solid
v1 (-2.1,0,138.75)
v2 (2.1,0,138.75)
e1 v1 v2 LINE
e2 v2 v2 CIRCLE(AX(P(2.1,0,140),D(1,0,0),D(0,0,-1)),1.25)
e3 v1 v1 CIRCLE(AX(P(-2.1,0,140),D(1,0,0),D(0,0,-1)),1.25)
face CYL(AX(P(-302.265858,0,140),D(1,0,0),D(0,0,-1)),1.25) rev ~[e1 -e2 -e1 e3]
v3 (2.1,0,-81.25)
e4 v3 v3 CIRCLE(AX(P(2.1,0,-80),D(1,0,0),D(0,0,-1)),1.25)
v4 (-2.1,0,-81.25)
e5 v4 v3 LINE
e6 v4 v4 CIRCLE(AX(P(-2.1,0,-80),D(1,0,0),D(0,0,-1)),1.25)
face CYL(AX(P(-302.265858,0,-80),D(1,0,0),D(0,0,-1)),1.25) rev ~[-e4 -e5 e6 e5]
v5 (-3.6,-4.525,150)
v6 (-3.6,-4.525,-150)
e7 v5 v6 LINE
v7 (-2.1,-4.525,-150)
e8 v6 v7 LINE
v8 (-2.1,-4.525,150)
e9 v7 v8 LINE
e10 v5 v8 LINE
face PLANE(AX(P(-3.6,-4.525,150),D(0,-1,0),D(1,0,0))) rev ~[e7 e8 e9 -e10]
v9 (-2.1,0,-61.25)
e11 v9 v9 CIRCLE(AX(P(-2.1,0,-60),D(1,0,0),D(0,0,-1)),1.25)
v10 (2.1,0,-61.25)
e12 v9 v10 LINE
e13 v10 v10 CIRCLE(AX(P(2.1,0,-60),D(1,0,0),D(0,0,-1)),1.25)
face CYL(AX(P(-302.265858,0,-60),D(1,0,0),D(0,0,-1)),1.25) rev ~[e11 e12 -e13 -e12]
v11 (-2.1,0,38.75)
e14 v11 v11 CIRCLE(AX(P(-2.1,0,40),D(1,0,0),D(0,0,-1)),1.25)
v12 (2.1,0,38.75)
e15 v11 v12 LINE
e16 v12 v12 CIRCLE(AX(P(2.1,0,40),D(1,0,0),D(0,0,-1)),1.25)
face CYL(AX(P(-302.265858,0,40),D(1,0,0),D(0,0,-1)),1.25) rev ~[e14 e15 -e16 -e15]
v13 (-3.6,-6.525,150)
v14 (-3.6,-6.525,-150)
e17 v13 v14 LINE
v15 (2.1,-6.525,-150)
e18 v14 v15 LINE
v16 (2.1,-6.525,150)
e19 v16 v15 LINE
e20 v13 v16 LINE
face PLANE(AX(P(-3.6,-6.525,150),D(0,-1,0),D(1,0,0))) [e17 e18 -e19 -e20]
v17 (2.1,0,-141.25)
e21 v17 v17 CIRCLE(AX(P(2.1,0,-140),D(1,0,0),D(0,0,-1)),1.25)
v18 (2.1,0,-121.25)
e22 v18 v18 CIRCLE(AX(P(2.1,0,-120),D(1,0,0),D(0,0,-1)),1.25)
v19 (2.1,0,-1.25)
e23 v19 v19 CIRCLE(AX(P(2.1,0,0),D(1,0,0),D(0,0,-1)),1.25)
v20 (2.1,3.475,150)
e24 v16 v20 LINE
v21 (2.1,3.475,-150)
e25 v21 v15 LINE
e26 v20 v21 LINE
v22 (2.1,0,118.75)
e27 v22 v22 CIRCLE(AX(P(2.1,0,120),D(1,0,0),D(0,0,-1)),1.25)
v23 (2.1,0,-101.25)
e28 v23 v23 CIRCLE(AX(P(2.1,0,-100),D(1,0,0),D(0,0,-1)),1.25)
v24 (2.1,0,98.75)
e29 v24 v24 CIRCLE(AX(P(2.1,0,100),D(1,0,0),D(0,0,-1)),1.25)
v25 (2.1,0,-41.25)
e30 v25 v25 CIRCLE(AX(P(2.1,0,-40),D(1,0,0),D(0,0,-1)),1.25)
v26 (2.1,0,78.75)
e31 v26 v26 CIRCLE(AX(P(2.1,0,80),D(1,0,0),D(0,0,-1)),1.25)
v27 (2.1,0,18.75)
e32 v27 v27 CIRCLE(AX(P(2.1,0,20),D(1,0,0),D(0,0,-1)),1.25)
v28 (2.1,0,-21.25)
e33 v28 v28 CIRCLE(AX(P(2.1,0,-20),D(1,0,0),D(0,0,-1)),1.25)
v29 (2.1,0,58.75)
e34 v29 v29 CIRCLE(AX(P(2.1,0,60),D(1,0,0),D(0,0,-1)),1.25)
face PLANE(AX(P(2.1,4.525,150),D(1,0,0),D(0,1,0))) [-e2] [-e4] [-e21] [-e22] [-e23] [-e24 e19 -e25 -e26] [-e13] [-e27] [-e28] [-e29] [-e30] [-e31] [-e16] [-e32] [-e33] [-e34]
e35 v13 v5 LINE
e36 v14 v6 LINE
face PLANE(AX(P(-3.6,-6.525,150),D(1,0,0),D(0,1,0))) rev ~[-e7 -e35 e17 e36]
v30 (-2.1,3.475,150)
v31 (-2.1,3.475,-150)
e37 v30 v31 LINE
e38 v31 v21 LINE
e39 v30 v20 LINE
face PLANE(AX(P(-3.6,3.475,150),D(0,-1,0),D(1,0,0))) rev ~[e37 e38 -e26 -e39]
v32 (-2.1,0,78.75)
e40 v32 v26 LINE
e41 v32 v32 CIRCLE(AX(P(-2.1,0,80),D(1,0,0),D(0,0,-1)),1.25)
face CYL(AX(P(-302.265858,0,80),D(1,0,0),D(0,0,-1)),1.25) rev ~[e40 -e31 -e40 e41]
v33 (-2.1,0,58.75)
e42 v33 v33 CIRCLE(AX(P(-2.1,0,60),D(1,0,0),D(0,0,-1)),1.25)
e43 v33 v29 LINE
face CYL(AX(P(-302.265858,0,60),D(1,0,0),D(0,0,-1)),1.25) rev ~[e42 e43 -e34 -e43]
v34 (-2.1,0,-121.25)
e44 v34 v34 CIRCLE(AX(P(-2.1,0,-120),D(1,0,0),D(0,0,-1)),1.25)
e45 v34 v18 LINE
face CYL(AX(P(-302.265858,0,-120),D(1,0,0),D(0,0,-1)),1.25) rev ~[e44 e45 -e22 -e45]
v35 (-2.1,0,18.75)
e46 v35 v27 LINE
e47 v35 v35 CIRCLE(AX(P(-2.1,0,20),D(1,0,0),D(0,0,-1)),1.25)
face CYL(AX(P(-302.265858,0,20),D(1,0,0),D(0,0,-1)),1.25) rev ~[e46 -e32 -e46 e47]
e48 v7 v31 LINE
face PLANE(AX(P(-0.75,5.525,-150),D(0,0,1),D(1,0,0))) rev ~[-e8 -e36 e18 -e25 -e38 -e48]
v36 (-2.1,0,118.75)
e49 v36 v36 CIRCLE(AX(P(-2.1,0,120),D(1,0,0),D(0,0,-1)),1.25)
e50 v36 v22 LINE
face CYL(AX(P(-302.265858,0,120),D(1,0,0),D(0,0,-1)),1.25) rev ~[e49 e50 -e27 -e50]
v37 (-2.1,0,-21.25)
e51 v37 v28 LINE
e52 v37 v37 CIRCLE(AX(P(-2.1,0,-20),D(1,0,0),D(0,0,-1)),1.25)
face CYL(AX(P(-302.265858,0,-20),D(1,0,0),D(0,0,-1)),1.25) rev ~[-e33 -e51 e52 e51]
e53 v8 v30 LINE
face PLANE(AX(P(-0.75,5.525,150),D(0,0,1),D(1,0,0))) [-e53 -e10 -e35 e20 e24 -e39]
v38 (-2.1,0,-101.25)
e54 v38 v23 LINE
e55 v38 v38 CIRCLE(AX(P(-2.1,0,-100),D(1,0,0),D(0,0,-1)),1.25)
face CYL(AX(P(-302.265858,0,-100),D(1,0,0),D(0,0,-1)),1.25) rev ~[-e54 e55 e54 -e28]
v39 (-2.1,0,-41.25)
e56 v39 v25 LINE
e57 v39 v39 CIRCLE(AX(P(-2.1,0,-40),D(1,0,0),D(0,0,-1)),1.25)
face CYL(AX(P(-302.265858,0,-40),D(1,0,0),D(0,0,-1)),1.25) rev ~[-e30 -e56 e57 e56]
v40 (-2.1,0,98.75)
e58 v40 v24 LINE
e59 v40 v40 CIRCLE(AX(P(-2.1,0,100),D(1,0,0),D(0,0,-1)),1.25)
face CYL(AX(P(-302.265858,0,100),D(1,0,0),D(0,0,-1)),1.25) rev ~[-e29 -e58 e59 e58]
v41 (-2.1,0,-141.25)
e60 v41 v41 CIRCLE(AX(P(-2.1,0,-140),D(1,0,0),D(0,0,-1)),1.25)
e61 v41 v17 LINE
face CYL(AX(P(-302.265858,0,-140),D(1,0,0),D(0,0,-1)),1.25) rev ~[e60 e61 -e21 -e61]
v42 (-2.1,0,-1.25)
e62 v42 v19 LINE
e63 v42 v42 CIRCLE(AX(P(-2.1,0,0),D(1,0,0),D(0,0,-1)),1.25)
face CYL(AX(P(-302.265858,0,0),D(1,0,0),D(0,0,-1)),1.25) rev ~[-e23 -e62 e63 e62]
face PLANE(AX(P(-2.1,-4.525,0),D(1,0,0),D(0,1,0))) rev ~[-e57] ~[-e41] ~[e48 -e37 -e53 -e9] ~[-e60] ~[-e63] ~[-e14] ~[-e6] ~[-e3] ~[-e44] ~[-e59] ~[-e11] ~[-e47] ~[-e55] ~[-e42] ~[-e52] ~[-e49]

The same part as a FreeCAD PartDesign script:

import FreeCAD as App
import Part
import Sketcher

V = App.Vector


def add_polygon(sketch, points):
    """Adds a closed chain of lines whose ends are joined by coincident constraints."""
    first, n = sketch.GeometryCount, len(points)
    for a, b in zip(points, points[1:] + points[:1]):
        sketch.addGeometry(Part.LineSegment(App.Vector(*a, 0), App.Vector(*b, 0)), False)
    for i in range(n):
        sketch.addConstraint(Sketcher.Constraint("Coincident", first + i, 2, first + (i + 1) % n, 1))

doc = App.newDocument("Part")
body = doc.addObject("PartDesign::Body", "Body")

# Sketch on XY plane
sketch1 = body.newObject("Sketcher::SketchObject", "Sketch")
sketch1.AttachmentSupport = (doc.getObject("XY_Plane"), [""])
sketch1.MapMode = "FlatFace"
add_polygon(sketch1, [(-2.1, 4.5), (-2.1, -4.5), (2.1, -4.5), (2.1, 4.5)])  # lines 0-3
sketch1.addConstraint([
    Sketcher.Constraint("Vertical", 0),
    Sketcher.Constraint("Horizontal", 1),
    Sketcher.Constraint("Vertical", 2),
    Sketcher.Constraint("Horizontal", 3),
    Sketcher.Constraint("Symmetric", 0, 2, 2, 2, -1, 1),
    Sketcher.Constraint("DistanceX", 1, 1, 1, 2, 4.2),
    Sketcher.Constraint("DistanceY", 0, 2, 0, 1, 9.05),
])
pad1 = body.newObject("PartDesign::Pad", "Pad")
pad1.Profile = sketch1
pad1.Length = 300
pad1.Midplane = True

# Sketch on YZ plane
sketch2 = body.newObject("Sketcher::SketchObject", "Sketch001")
sketch2.AttachmentSupport = (doc.getObject("YZ_Plane"), [""])
sketch2.MapMode = "FlatFace"
sketch2.AttachmentOffset = App.Placement(V(0, 0, -2.1), App.Rotation())
sketch2.addGeometry(Part.Circle(V(0, -140, 0), V(0, 0, 1), 1.2), False)
sketch2.addConstraint([
    Sketcher.Constraint("PointOnObject", 0, 3, -2),
    Sketcher.Constraint("Diameter", 0, 2.5),
    Sketcher.Constraint("DistanceY", 0, 3, -1, 1, 140.0),
])
doc.recompute()
hole = body.newObject("PartDesign::Hole", "Hole")
hole.Profile = sketch2
hole.ThreadType = "None"
hole.Diameter = 2.5
hole.DepthType = "ThroughAll"
hole.Reversed = True
doc.recompute()

linearpattern = body.newObject("PartDesign::LinearPattern", "LinearPattern")
linearpattern.Originals = [hole]
linearpattern.Direction = (doc.getObject("Z_Axis"), [""])
linearpattern.Mode = "offset"
linearpattern.Offset = 20
linearpattern.Occurrences = 15
body.Tip = linearpattern

# Sketch on XY plane
sketch3 = body.newObject("Sketcher::SketchObject", "Sketch002")
sketch3.AttachmentSupport = (doc.getObject("XY_Plane"), [""])
sketch3.MapMode = "FlatFace"
sketch3.AttachmentOffset = App.Placement(V(0, 0, 150), App.Rotation())
add_polygon(sketch3, [(-3.6, 6.5), (-3.6, 4.5), (2.1, 4.5), (2.1, 6.5)])  # lines 0-3
add_polygon(sketch3, [(-3.6, -4.5), (-3.6, -6.5), (2.1, -6.5), (2.1, -4.5)])  # lines 4-7
sketch3.addConstraint([
    Sketcher.Constraint("Vertical", 0),
    Sketcher.Constraint("Horizontal", 1),
    Sketcher.Constraint("Vertical", 2),
    Sketcher.Constraint("Horizontal", 3),
    Sketcher.Constraint("Vertical", 4),
    Sketcher.Constraint("Horizontal", 5),
    Sketcher.Constraint("Vertical", 6),
    Sketcher.Constraint("Horizontal", 7),
    Sketcher.Constraint("Symmetric", 3, 2, 4, 2, -1),
    Sketcher.Constraint("Symmetric", 1, 2, 6, 2, -1),
    Sketcher.Constraint("DistanceY", 0, 2, 0, 1, 2.0),
    Sketcher.Constraint("DistanceX", 1, 1, 1, 2, 5.7),
    Sketcher.Constraint("DistanceX", 0, 2, -1, 1, 3.6),
    Sketcher.Constraint("DistanceY", 4, 2, 0, 2, 11.05),
])
pad2 = body.newObject("PartDesign::Pad", "Pad001")
pad2.Profile = sketch3
pad2.Length = 300
pad2.Reversed = True

# Sketch on XY plane
sketch4 = body.newObject("Sketcher::SketchObject", "Sketch003")
sketch4.AttachmentSupport = (doc.getObject("XY_Plane"), [""])
sketch4.MapMode = "FlatFace"
sketch4.AttachmentOffset = App.Placement(V(0, 0, 150), App.Rotation())
add_polygon(sketch4, [(-3.6, 6.5), (-3.6, 3.5), (2.1, 3.5), (2.1, 6.5)])  # lines 0-3
sketch4.addConstraint([
    Sketcher.Constraint("Vertical", 0),
    Sketcher.Constraint("Horizontal", 1),
    Sketcher.Constraint("Vertical", 2),
    Sketcher.Constraint("Horizontal", 3),
    Sketcher.Constraint("DistanceX", 1, 1, 1, 2, 5.7),
    Sketcher.Constraint("DistanceY", 0, 2, 0, 1, 3.05),
    Sketcher.Constraint("DistanceX", 0, 2, -1, 1, 3.6),
    Sketcher.Constraint("DistanceY", -1, 1, 0, 2, 3.475),
])
pocket1 = body.newObject("PartDesign::Pocket", "Pocket")
pocket1.Profile = sketch4
pocket1.Type = "ThroughAll"

doc.recompute()
